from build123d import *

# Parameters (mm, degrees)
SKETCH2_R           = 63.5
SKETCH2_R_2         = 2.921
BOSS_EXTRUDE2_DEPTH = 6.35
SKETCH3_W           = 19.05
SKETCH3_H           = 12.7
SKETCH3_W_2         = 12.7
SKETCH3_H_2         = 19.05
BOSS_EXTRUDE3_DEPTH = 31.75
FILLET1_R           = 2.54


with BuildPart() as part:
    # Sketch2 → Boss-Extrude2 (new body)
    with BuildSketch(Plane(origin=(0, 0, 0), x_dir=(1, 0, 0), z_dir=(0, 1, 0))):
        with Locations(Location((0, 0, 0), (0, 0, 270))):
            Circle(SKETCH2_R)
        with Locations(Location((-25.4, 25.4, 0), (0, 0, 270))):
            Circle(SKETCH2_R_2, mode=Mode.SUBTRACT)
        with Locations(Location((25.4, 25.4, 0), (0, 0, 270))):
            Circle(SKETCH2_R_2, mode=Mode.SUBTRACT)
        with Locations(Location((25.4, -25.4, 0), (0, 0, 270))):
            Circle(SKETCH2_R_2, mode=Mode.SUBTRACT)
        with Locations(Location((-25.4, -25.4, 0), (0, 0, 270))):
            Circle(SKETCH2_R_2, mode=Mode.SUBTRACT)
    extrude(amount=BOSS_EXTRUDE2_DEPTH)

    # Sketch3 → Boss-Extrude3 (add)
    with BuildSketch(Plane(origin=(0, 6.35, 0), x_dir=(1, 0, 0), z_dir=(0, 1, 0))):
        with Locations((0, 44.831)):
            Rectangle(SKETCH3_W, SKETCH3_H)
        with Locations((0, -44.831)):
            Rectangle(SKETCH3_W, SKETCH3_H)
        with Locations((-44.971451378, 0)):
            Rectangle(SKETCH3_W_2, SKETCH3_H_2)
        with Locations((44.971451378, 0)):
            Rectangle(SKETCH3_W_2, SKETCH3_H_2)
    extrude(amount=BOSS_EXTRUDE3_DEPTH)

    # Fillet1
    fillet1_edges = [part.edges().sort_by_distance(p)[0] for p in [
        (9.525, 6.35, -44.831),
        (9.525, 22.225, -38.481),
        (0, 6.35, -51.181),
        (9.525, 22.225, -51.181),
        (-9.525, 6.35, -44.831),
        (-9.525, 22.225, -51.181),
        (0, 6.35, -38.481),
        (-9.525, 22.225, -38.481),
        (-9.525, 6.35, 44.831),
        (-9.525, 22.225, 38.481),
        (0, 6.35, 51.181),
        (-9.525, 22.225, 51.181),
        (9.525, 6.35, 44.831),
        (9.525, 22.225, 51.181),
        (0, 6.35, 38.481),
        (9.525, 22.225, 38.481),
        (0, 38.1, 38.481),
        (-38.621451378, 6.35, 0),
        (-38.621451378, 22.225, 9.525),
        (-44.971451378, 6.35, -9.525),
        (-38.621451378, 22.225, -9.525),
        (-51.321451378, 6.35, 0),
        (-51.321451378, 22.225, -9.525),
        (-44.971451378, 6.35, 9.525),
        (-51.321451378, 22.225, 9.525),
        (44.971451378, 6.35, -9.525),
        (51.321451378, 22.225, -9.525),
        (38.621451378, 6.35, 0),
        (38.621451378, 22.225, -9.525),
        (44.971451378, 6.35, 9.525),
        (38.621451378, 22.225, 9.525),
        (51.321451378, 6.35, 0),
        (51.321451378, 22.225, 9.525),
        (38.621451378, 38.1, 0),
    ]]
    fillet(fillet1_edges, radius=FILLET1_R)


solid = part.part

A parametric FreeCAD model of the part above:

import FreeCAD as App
import Part
import Sketcher

V = App.Vector
Q = App.Units.Quantity


def edges_at(feature, points):
    """Names of the edges that pass closest to the given points."""
    edges = feature.Shape.Edges
    near = lambda p: min(range(len(edges)), key=lambda i: edges[i].distToShape(Part.Vertex(*p))[0])
    return sorted({f"Edge{near(p) + 1}" for p in points})

doc = App.newDocument("Part")
body = doc.addObject("PartDesign::Body", "Body")

sketch1 = body.newObject("Sketcher::SketchObject", "Sketch")
sketch1.AttachmentSupport = (doc.getObject("XZ_Plane"), [""])
sketch1.MapMode = "FlatFace"
sketch1.addGeometry(Part.Circle(V(0, 0, 0), V(0, 0, 1), 63.5), False)
sketch1.addGeometry(Part.Circle(V(-25.4, -25.4, 0), V(0, 0, 1), 2.9), False)
sketch1.addGeometry(Part.Circle(V(-25.4, 25.4, 0), V(0, 0, 1), 2.9), False)
sketch1.addGeometry(Part.Circle(V(25.4, -25.4, 0), V(0, 0, 1), 2.9), False)
sketch1.addGeometry(Part.Circle(V(25.4, 25.4, 0), V(0, 0, 1), 2.9), False)
sketch1.addConstraint(Sketcher.Constraint("Coincident", 0, 3, -1, 1))
sketch1.addConstraint(Sketcher.Constraint("Equal", 1, 2))
sketch1.addConstraint(Sketcher.Constraint("Equal", 2, 3))
sketch1.addConstraint(Sketcher.Constraint("Equal", 3, 4))
sketch1.addConstraint(Sketcher.Constraint("Symmetric", 2, 3, 3, 3, -1, 1))
sketch1.addConstraint(Sketcher.Constraint("Symmetric", 1, 3, 4, 3, -1, 1))
sketch1.addConstraint(Sketcher.Constraint("Symmetric", 1, 3, 3, 3, -2))
sketch1.addConstraint(Sketcher.Constraint("Diameter", 0, Q("5 in")))
sketch1.addConstraint(Sketcher.Constraint("Diameter", 1, Q("0.23 in")))
sketch1.addConstraint(Sketcher.Constraint("DistanceX", 1, 3, -1, 1, Q("1 in")))
sketch1.addConstraint(Sketcher.Constraint("DistanceY", 1, 3, -1, 1, Q("1 in")))
pad1 = body.newObject("PartDesign::Pad", "Pad")
pad1.Profile = sketch1
pad1.Length = Q("0.25 in")
pad1.Reversed = True

sketch2 = body.newObject("Sketcher::SketchObject", "Sketch001")
sketch2.AttachmentSupport = (doc.getObject("XZ_Plane"), [""])
sketch2.MapMode = "FlatFace"
sketch2.AttachmentOffset = App.Placement(V(0, 0, -0.25 * 25.4), App.Rotation())
sketch2.addGeometry(Part.LineSegment(V(-10, -51, 0), V(-10, -38, 0)), False)
sketch2.addGeometry(Part.LineSegment(V(-10, -38, 0), V(10, -38, 0)), False)
sketch2.addGeometry(Part.LineSegment(V(10, -38, 0), V(10, -51, 0)), False)
sketch2.addGeometry(Part.LineSegment(V(10, -51, 0), V(-10, -51, 0)), False)
sketch2.addGeometry(Part.LineSegment(V(-10, 38, 0), V(-10, 51, 0)), False)
sketch2.addGeometry(Part.LineSegment(V(-10, 51, 0), V(10, 51, 0)), False)
sketch2.addGeometry(Part.LineSegment(V(10, 51, 0), V(10, 38, 0)), False)
sketch2.addGeometry(Part.LineSegment(V(10, 38, 0), V(-10, 38, 0)), False)
sketch2.addGeometry(Part.LineSegment(V(-51, -10, 0), V(-51, 10, 0)), False)
sketch2.addGeometry(Part.LineSegment(V(-51, 10, 0), V(-39, 10, 0)), False)
sketch2.addGeometry(Part.LineSegment(V(-39, 10, 0), V(-39, -10, 0)), False)
sketch2.addGeometry(Part.LineSegment(V(-39, -10, 0), V(-51, -10, 0)), False)
sketch2.addGeometry(Part.LineSegment(V(39, -10, 0), V(39, 10, 0)), False)
sketch2.addGeometry(Part.LineSegment(V(39, 10, 0), V(51, 10, 0)), False)
sketch2.addGeometry(Part.LineSegment(V(51, 10, 0), V(51, -10, 0)), False)
sketch2.addGeometry(Part.LineSegment(V(51, -10, 0), V(39, -10, 0)), False)
sketch2.addConstraint(Sketcher.Constraint("Coincident", 0, 2, 1, 1))
sketch2.addConstraint(Sketcher.Constraint("Coincident", 1, 2, 2, 1))
sketch2.addConstraint(Sketcher.Constraint("Coincident", 2, 2, 3, 1))
sketch2.addConstraint(Sketcher.Constraint("Coincident", 3, 2, 0, 1))
sketch2.addConstraint(Sketcher.Constraint("Coincident", 4, 2, 5, 1))
sketch2.addConstraint(Sketcher.Constraint("Coincident", 5, 2, 6, 1))
sketch2.addConstraint(Sketcher.Constraint("Coincident", 6, 2, 7, 1))
sketch2.addConstraint(Sketcher.Constraint("Coincident", 7, 2, 4, 1))
sketch2.addConstraint(Sketcher.Constraint("Coincident", 8, 2, 9, 1))
sketch2.addConstraint(Sketcher.Constraint("Coincident", 9, 2, 10, 1))
sketch2.addConstraint(Sketcher.Constraint("Coincident", 10, 2, 11, 1))
sketch2.addConstraint(Sketcher.Constraint("Coincident", 11, 2, 8, 1))
sketch2.addConstraint(Sketcher.Constraint("Coincident", 12, 2, 13, 1))
sketch2.addConstraint(Sketcher.Constraint("Coincident", 13, 2, 14, 1))
sketch2.addConstraint(Sketcher.Constraint("Coincident", 14, 2, 15, 1))
sketch2.addConstraint(Sketcher.Constraint("Coincident", 15, 2, 12, 1))
sketch2.addConstraint(Sketcher.Constraint("Vertical", 0))
sketch2.addConstraint(Sketcher.Constraint("Horizontal", 1))
sketch2.addConstraint(Sketcher.Constraint("Vertical", 2))
sketch2.addConstraint(Sketcher.Constraint("Horizontal", 3))
sketch2.addConstraint(Sketcher.Constraint("Vertical", 4))
sketch2.addConstraint(Sketcher.Constraint("Horizontal", 5))
sketch2.addConstraint(Sketcher.Constraint("Vertical", 6))
sketch2.addConstraint(Sketcher.Constraint("Horizontal", 7))
sketch2.addConstraint(Sketcher.Constraint("Vertical", 8))
sketch2.addConstraint(Sketcher.Constraint("Horizontal", 9))
sketch2.addConstraint(Sketcher.Constraint("Vertical", 10))
sketch2.addConstraint(Sketcher.Constraint("Horizontal", 11))
sketch2.addConstraint(Sketcher.Constraint("Vertical", 12))
sketch2.addConstraint(Sketcher.Constraint("Horizontal", 13))
sketch2.addConstraint(Sketcher.Constraint("Vertical", 14))
sketch2.addConstraint(Sketcher.Constraint("Horizontal", 15))
sketch2.addConstraint(Sketcher.Constraint("Symmetric", 2, 2, 4, 2, -1, 1))
sketch2.addConstraint(Sketcher.Constraint("Symmetric", 0, 2, 6, 2, -1, 1))
sketch2.addConstraint(Sketcher.Constraint("Symmetric", 10, 2, 12, 2, -1, 1))
sketch2.addConstraint(Sketcher.Constraint("Symmetric", 8, 2, 14, 2, -1, 1))
sketch2.addConstraint(Sketcher.Constraint("Horizontal", 9, 2, 12, 2))
sketch2.addConstraint(Sketcher.Constraint("Vertical", 3, 2, 4, 2))
sketch2.addConstraint(Sketcher.Constraint("Equal", 15, 0))
sketch2.addConstraint(Sketcher.Constraint("Equal", 7, 8))
sketch2.addConstraint(Sketcher.Constraint("DistanceX", 9, 1, 9, 2, Q("0.5 in")))
sketch2.addConstraint(Sketcher.Constraint("DistanceX", 1, 1, 1, 2, Q("0.75 in")))
sketch2.addConstraint(Sketcher.Constraint("DistanceY", 0, 2, 4, 2, Q("3.53 in")))
sketch2.addConstraint(Sketcher.Constraint("DistanceX", 8, 2, -1, 1, 51.321451))
pad2 = body.newObject("PartDesign::Pad", "Pad001")
pad2.Profile = sketch2
pad2.Length = Q("1.25 in")
pad2.Reversed = True
doc.recompute()

fillet = body.newObject("PartDesign::Fillet", "Fillet")
fillet.Base = (pad2, edges_at(pad2, [
    (9.525, 6.35, -44.831),
    (9.525, 22.225, -38.481),
    (0, 6.35, -51.181),
    (9.525, 22.225, -51.181),
    (-9.525, 6.35, -44.831),
    (-9.525, 22.225, -51.181),
    (0, 6.35, -38.481),
    (-9.525, 22.225, -38.481),
    (-9.525, 6.35, 44.831),
    (-9.525, 22.225, 38.481),
    (0, 6.35, 51.181),
    (-9.525, 22.225, 51.181),
    (9.525, 6.35, 44.831),
    (9.525, 22.225, 51.181),
    (0, 6.35, 38.481),
    (9.525, 22.225, 38.481),
    (0, 38.1, 38.481),
    (-38.621, 6.35, 0),
    (-38.621, 22.225, 9.525),
    (-44.971, 6.35, -9.525),
    (-38.621, 22.225, -9.525),
    (-51.321, 6.35, 0),
    (-51.321, 22.225, -9.525),
    (-44.971, 6.35, 9.525),
    (-51.321, 22.225, 9.525),
    (44.971, 6.35, -9.525),
    (51.321, 22.225, -9.525),
    (38.621, 6.35, 0),
    (38.621, 22.225, -9.525),
    (44.971, 6.35, 9.525),
    (38.621, 22.225, 9.525),
    (51.321, 6.35, 0),
    (51.321, 22.225, 9.525),
    (38.621, 38.1, 0),
]))
fillet.Radius = Q("0.1 in")

doc.recompute()
